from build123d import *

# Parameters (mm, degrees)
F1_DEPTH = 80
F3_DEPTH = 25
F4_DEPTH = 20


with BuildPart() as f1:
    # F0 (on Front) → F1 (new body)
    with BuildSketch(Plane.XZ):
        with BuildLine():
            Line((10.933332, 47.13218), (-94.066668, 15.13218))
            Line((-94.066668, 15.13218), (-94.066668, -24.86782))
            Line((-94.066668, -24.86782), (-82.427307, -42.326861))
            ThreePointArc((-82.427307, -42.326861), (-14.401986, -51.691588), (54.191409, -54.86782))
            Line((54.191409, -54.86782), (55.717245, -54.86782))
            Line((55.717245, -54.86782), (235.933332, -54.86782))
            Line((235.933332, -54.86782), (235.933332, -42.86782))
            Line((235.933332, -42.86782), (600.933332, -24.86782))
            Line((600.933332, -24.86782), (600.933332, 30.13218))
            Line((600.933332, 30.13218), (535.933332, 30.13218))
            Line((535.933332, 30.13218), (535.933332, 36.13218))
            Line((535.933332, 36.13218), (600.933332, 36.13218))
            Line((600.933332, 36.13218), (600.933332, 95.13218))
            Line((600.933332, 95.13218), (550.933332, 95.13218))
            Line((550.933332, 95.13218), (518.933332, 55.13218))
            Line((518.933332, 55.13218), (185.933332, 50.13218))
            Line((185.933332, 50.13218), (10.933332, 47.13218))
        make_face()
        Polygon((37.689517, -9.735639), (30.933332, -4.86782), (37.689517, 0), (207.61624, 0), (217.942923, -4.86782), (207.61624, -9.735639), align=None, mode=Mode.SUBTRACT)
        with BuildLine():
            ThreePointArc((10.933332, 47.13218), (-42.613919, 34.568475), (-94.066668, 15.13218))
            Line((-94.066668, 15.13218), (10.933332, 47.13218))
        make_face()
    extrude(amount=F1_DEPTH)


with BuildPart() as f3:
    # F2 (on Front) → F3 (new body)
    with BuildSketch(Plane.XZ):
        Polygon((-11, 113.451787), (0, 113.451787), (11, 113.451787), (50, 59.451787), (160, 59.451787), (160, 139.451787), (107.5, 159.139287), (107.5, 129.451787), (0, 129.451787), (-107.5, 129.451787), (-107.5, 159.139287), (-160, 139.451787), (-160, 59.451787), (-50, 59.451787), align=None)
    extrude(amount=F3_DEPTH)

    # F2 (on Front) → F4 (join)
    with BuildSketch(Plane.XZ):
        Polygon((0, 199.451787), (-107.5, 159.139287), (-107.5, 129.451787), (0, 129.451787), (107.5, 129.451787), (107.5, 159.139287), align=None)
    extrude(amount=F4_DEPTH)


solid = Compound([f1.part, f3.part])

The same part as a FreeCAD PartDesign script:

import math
import FreeCAD as App
import Part
import Sketcher
from FreeCAD import Vector

doc = App.newDocument("Part")
body = doc.addObject("PartDesign::Body", "Body")

# Sketch on XZ plane
sketch1 = body.newObject("Sketcher::SketchObject", "Sketch")
sketch1.AttachmentSupport = (doc.getObject("XZ_Plane"), [""])
sketch1.MapMode = "FlatFace"
sketch1.addGeometry(Part.LineSegment(Vector(186, 50, 0), Vector(11, 47, 0)), False)
sketch1.addGeometry(Part.ArcOfCircle(Part.Circle(Vector(80, -368, 0), Vector(0, 0, 1), 421), math.radians(99.46), math.radians(114.44)), False)
sketch1.addGeometry(Part.LineSegment(Vector(-94, 15, 0), Vector(-94, -25, 0)), False)
sketch1.addGeometry(Part.LineSegment(Vector(-94, -25, 0), Vector(-82, -42, 0)), False)
sketch1.addGeometry(Part.ArcOfCircle(Part.Circle(Vector(55, 704, 0), Vector(0, 0, 1), 759), math.radians(-100.43), math.radians(-90.06)), False)
sketch1.addGeometry(Part.LineSegment(Vector(54, -55, 0), Vector(236, -55, 0)), False)
sketch1.addGeometry(Part.LineSegment(Vector(236, -55, 0), Vector(236, -43, 0)), False)
sketch1.addGeometry(Part.LineSegment(Vector(236, -43, 0), Vector(601, -25, 0)), False)
sketch1.addGeometry(Part.LineSegment(Vector(601, -25, 0), Vector(601, 30, 0)), False)
sketch1.addGeometry(Part.LineSegment(Vector(601, 30, 0), Vector(536, 30, 0)), False)
sketch1.addGeometry(Part.LineSegment(Vector(536, 30, 0), Vector(536, 36, 0)), False)
sketch1.addGeometry(Part.LineSegment(Vector(536, 36, 0), Vector(601, 36, 0)), False)
sketch1.addGeometry(Part.LineSegment(Vector(601, 36, 0), Vector(601, 95, 0)), False)
sketch1.addGeometry(Part.LineSegment(Vector(601, 95, 0), Vector(551, 95, 0)), False)
sketch1.addGeometry(Part.LineSegment(Vector(551, 95, 0), Vector(519, 55, 0)), False)
sketch1.addGeometry(Part.LineSegment(Vector(519, 55, 0), Vector(186, 50, 0)), False)
sketch1.addGeometry(Part.LineSegment(Vector(208, -10, 0), Vector(38, -10, 0)), False)
sketch1.addGeometry(Part.LineSegment(Vector(38, -10, 0), Vector(31, -5, 0)), False)
sketch1.addGeometry(Part.LineSegment(Vector(31, -5, 0), Vector(38, 0, 0)), False)
sketch1.addGeometry(Part.LineSegment(Vector(38, 0, 0), Vector(208, 0, 0)), False)
sketch1.addGeometry(Part.LineSegment(Vector(208, 0, 0), Vector(218, -5, 0)), False)
sketch1.addGeometry(Part.LineSegment(Vector(218, -5, 0), Vector(208, -10, 0)), False)
sketch1.addConstraint(Sketcher.Constraint("Coincident", 0, 2, 1, 1))
sketch1.addConstraint(Sketcher.Constraint("Coincident", 1, 2, 2, 1))
sketch1.addConstraint(Sketcher.Constraint("Coincident", 2, 2, 3, 1))
sketch1.addConstraint(Sketcher.Constraint("Coincident", 3, 2, 4, 1))
sketch1.addConstraint(Sketcher.Constraint("Coincident", 4, 2, 5, 1))
sketch1.addConstraint(Sketcher.Constraint("Coincident", 5, 2, 6, 1))
sketch1.addConstraint(Sketcher.Constraint("Coincident", 6, 2, 7, 1))
sketch1.addConstraint(Sketcher.Constraint("Coincident", 7, 2, 8, 1))
sketch1.addConstraint(Sketcher.Constraint("Coincident", 8, 2, 9, 1))
sketch1.addConstraint(Sketcher.Constraint("Coincident", 9, 2, 10, 1))
sketch1.addConstraint(Sketcher.Constraint("Coincident", 10, 2, 11, 1))
sketch1.addConstraint(Sketcher.Constraint("Coincident", 11, 2, 12, 1))
sketch1.addConstraint(Sketcher.Constraint("Coincident", 12, 2, 13, 1))
sketch1.addConstraint(Sketcher.Constraint("Coincident", 13, 2, 14, 1))
sketch1.addConstraint(Sketcher.Constraint("Coincident", 14, 2, 15, 1))
sketch1.addConstraint(Sketcher.Constraint("Coincident", 15, 2, 0, 1))
sketch1.addConstraint(Sketcher.Constraint("Coincident", 16, 2, 17, 1))
sketch1.addConstraint(Sketcher.Constraint("Coincident", 17, 2, 18, 1))
sketch1.addConstraint(Sketcher.Constraint("Coincident", 18, 2, 19, 1))
sketch1.addConstraint(Sketcher.Constraint("Coincident", 19, 2, 20, 1))
sketch1.addConstraint(Sketcher.Constraint("Coincident", 20, 2, 21, 1))
sketch1.addConstraint(Sketcher.Constraint("Coincident", 21, 2, 16, 1))
sketch1.addConstraint(Sketcher.Constraint("Vertical", 2))
sketch1.addConstraint(Sketcher.Constraint("Horizontal", 5))
sketch1.addConstraint(Sketcher.Constraint("Vertical", 6))
sketch1.addConstraint(Sketcher.Constraint("Vertical", 8))
sketch1.addConstraint(Sketcher.Constraint("Horizontal", 9))
sketch1.addConstraint(Sketcher.Constraint("Vertical", 10))
sketch1.addConstraint(Sketcher.Constraint("Horizontal", 11))
sketch1.addConstraint(Sketcher.Constraint("Vertical", 12))
sketch1.addConstraint(Sketcher.Constraint("Horizontal", 13))
sketch1.addConstraint(Sketcher.Constraint("Horizontal", 16))
sketch1.addConstraint(Sketcher.Constraint("Horizontal", 19))
sketch1.addConstraint(Sketcher.Constraint("PointOnObject", 18, 2, -1))
sketch1.addConstraint(Sketcher.Constraint("Horizontal", 2, 2, 7, 2))
sketch1.addConstraint(Sketcher.Constraint("Horizontal", 17, 2, 20, 2))
sketch1.addConstraint(Sketcher.Constraint("Vertical", 8, 2, 11, 2))
sketch1.addConstraint(Sketcher.Constraint("Vertical", 16, 2, 18, 2))
sketch1.addConstraint(Sketcher.Constraint("Vertical", 19, 2, 21, 2))
sketch1.addConstraint(Sketcher.Constraint("Equal", 17, 18))
sketch1.addConstraint(Sketcher.Constraint("DistanceX", 9, 2, 9, 1, 65.0))
sketch1.addConstraint(Sketcher.Constraint("DistanceX", 13, 2, 13, 1, 50.0))
sketch1.addConstraint(Sketcher.Constraint("DistanceY", 2, 2, 2, 1, 40.0))
sketch1.addConstraint(Sketcher.Constraint("DistanceY", 6, 1, 6, 2, 12.0))
sketch1.addConstraint(Sketcher.Constraint("DistanceY", 8, 1, 8, 2, 55.0))
sketch1.addConstraint(Sketcher.Constraint("DistanceY", 10, 1, 10, 2, 6.0))
sketch1.addConstraint(Sketcher.Constraint("DistanceY", 12, 1, 12, 2, 59.0))
sketch1.addConstraint(Sketcher.Constraint("DistanceX", 1, 2, 0, 2, 105.0))
sketch1.addConstraint(Sketcher.Constraint("DistanceY", 2, 2, 0, 2, 72.0))
sketch1.addConstraint(Sketcher.Constraint("DistanceY", 4, 2, 0, 2, 102.0))
sketch1.addConstraint(Sketcher.Constraint("DistanceX", 0, 2, 5, 2, 225.0))
sketch1.addConstraint(Sketcher.Constraint("DistanceX", 6, 2, 7, 2, 365.0))
sketch1.addConstraint(Sketcher.Constraint("DistanceX", 14, 2, 10, 2, 17.0))
sketch1.addConstraint(Sketcher.Constraint("DistanceY", 10, 2, 14, 2, 19.0))
sketch1.addConstraint(Sketcher.Constraint("DistanceX", 15, 2, 6, 2, 50.0))
sketch1.addConstraint(Sketcher.Constraint("DistanceY", 6, 2, 15, 2, 93.0))
sketch1.addConstraint(Sketcher.Constraint("DistanceY", 4, 2, 17, 2, 50.0))
sketch1.addConstraint(Sketcher.Constraint("DistanceX", 0, 2, 17, 2, 20.0))
sketch1.addConstraint(Sketcher.Constraint("Radius", 1, 421.057106))
sketch1.addConstraint(Sketcher.Constraint("Radius", 4, 758.730724))
sketch1.addConstraint(Sketcher.Constraint("Distance", 20, 11.416482))
sketch1.addConstraint(Sketcher.Constraint("DistanceX", 5, 1, 5, 2, 181.741923))
sketch1.addConstraint(Sketcher.Constraint("DistanceX", 16, 2, 16, 1, 169.926723))
sketch1.addConstraint(Sketcher.Constraint("DistanceY", -1, 1, 4, 3, 703.86252))
sketch1.addConstraint(Sketcher.Constraint("DistanceX", 2, 2, -1, 1, 94.066668))
sketch1.addConstraint(Sketcher.Constraint("DistanceY", 3, 2, -1, 1, 42.326861))
sketch1.addConstraint(Sketcher.Constraint("DistanceX", -1, 1, 19, 2, 207.61624))
sketch1.addConstraint(Sketcher.Constraint("DistanceX", 4, 3, 1, 3, 25.180032))
pad1 = body.newObject("PartDesign::Pad", "Pad")
pad1.Profile = sketch1
pad1.Length = 80
body2 = doc.addObject("PartDesign::Body", "Body001")

# Sketch on XZ plane
sketch2 = body2.newObject("Sketcher::SketchObject", "Sketch001")
sketch2.AttachmentSupport = (doc.getObject("XZ_Plane001"), [""])
sketch2.MapMode = "FlatFace"
sketch2.addGeometry(Part.LineSegment(Vector(-11, 113, 0), Vector(11, 113, 0)), False)
sketch2.addGeometry(Part.LineSegment(Vector(11, 113, 0), Vector(50, 59, 0)), False)
sketch2.addGeometry(Part.LineSegment(Vector(50, 59, 0), Vector(160, 59, 0)), False)
sketch2.addGeometry(Part.LineSegment(Vector(160, 59, 0), Vector(160, 139, 0)), False)
sketch2.addGeometry(Part.LineSegment(Vector(160, 139, 0), Vector(108, 159, 0)), False)
sketch2.addGeometry(Part.LineSegment(Vector(108, 159, 0), Vector(108, 129, 0)), False)
sketch2.addGeometry(Part.LineSegment(Vector(108, 129, 0), Vector(-108, 129, 0)), False)
sketch2.addGeometry(Part.LineSegment(Vector(-108, 129, 0), Vector(-108, 159, 0)), False)
sketch2.addGeometry(Part.LineSegment(Vector(-108, 159, 0), Vector(-160, 139, 0)), False)
sketch2.addGeometry(Part.LineSegment(Vector(-160, 139, 0), Vector(-160, 59, 0)), False)
sketch2.addGeometry(Part.LineSegment(Vector(-160, 59, 0), Vector(-50, 59, 0)), False)
sketch2.addGeometry(Part.LineSegment(Vector(-50, 59, 0), Vector(-11, 113, 0)), False)
sketch2.addConstraint(Sketcher.Constraint("Coincident", 0, 2, 1, 1))
sketch2.addConstraint(Sketcher.Constraint("Coincident", 1, 2, 2, 1))
sketch2.addConstraint(Sketcher.Constraint("Coincident", 2, 2, 3, 1))
sketch2.addConstraint(Sketcher.Constraint("Coincident", 3, 2, 4, 1))
sketch2.addConstraint(Sketcher.Constraint("Coincident", 4, 2, 5, 1))
sketch2.addConstraint(Sketcher.Constraint("Coincident", 5, 2, 6, 1))
sketch2.addConstraint(Sketcher.Constraint("Coincident", 6, 2, 7, 1))
sketch2.addConstraint(Sketcher.Constraint("Coincident", 7, 2, 8, 1))
sketch2.addConstraint(Sketcher.Constraint("Coincident", 8, 2, 9, 1))
sketch2.addConstraint(Sketcher.Constraint("Coincident", 9, 2, 10, 1))
sketch2.addConstraint(Sketcher.Constraint("Coincident", 10, 2, 11, 1))
sketch2.addConstraint(Sketcher.Constraint("Coincident", 11, 2, 0, 1))
sketch2.addConstraint(Sketcher.Constraint("Horizontal", 0))
sketch2.addConstraint(Sketcher.Constraint("Horizontal", 2))
sketch2.addConstraint(Sketcher.Constraint("Vertical", 3))
sketch2.addConstraint(Sketcher.Constraint("Vertical", 5))
sketch2.addConstraint(Sketcher.Constraint("Horizontal", 6))
sketch2.addConstraint(Sketcher.Constraint("Vertical", 7))
sketch2.addConstraint(Sketcher.Constraint("Vertical", 9))
sketch2.addConstraint(Sketcher.Constraint("Horizontal", 10))
sketch2.addConstraint(Sketcher.Constraint("Symmetric", 4, 2, 7, 2, -2))
sketch2.addConstraint(Sketcher.Constraint("Symmetric", 3, 2, 8, 2, -2))
sketch2.addConstraint(Sketcher.Constraint("Symmetric", 1, 2, 10, 2, -2))
sketch2.addConstraint(Sketcher.Constraint("Equal", 1, 11))
sketch2.addConstraint(Sketcher.Constraint("DistanceX", 0, 1, 0, 2, 22.0))
sketch2.addConstraint(Sketcher.Constraint("DistanceX", 2, 1, 2, 2, 110.0))
sketch2.addConstraint(Sketcher.Constraint("DistanceX", 6, 2, 6, 1, 215.0))
sketch2.addConstraint(Sketcher.Constraint("DistanceY", 3, 1, 3, 2, 80.0))
sketch2.addConstraint(Sketcher.Constraint("DistanceX", -1, 1, 1, 2, 50.0))
sketch2.addConstraint(Sketcher.Constraint("DistanceY", 1, 2, 0, 2, 54.0))
sketch2.addConstraint(Sketcher.Constraint("DistanceY", 5, 2, 3, 2, 10.0))
sketch2.addConstraint(Sketcher.Constraint("DistanceY", 5, 2, 5, 1, 29.6875))
sketch2.addConstraint(Sketcher.Constraint("DistanceY", -1, 1, 0, 2, 113.451787))
pad2 = body2.newObject("PartDesign::Pad", "Pad001")
pad2.Profile = sketch2
pad2.Length = 25

# Sketch on XZ plane
sketch3 = body2.newObject("Sketcher::SketchObject", "Sketch002")
sketch3.AttachmentSupport = (doc.getObject("XZ_Plane001"), [""])
sketch3.MapMode = "FlatFace"
sketch3.addGeometry(Part.LineSegment(Vector(0, 199, 0), Vector(-108, 159, 0)), False)
sketch3.addGeometry(Part.LineSegment(Vector(-108, 159, 0), Vector(-108, 129, 0)), False)
sketch3.addGeometry(Part.LineSegment(Vector(-108, 129, 0), Vector(108, 129, 0)), False)
sketch3.addGeometry(Part.LineSegment(Vector(108, 129, 0), Vector(108, 159, 0)), False)
sketch3.addGeometry(Part.LineSegment(Vector(108, 159, 0), Vector(0, 199, 0)), False)
sketch3.addConstraint(Sketcher.Constraint("Coincident", 0, 2, 1, 1))
sketch3.addConstraint(Sketcher.Constraint("Coincident", 1, 2, 2, 1))
sketch3.addConstraint(Sketcher.Constraint("Coincident", 2, 2, 3, 1))
sketch3.addConstraint(Sketcher.Constraint("Coincident", 3, 2, 4, 1))
sketch3.addConstraint(Sketcher.Constraint("Coincident", 4, 2, 0, 1))
sketch3.addConstraint(Sketcher.Constraint("Vertical", 1))
sketch3.addConstraint(Sketcher.Constraint("Horizontal", 2))
sketch3.addConstraint(Sketcher.Constraint("Vertical", 3))
sketch3.addConstraint(Sketcher.Constraint("Symmetric", 0, 2, 3, 2, -2))
sketch3.addConstraint(Sketcher.Constraint("PointOnObject", 4, 2, -2))
sketch3.addConstraint(Sketcher.Constraint("DistanceX", 2, 1, 2, 2, 215.0))
sketch3.addConstraint(Sketcher.Constraint("DistanceY", 1, 2, 4, 2, 70.0))
sketch3.addConstraint(Sketcher.Constraint("DistanceY", 1, 2, 1, 1, 29.6875))
sketch3.addConstraint(Sketcher.Constraint("DistanceY", -1, 1, 0, 2, 159.139287))
pad3 = body2.newObject("PartDesign::Pad", "Pad002")
pad3.Profile = sketch3
pad3.Length = 20

doc.recompute()
